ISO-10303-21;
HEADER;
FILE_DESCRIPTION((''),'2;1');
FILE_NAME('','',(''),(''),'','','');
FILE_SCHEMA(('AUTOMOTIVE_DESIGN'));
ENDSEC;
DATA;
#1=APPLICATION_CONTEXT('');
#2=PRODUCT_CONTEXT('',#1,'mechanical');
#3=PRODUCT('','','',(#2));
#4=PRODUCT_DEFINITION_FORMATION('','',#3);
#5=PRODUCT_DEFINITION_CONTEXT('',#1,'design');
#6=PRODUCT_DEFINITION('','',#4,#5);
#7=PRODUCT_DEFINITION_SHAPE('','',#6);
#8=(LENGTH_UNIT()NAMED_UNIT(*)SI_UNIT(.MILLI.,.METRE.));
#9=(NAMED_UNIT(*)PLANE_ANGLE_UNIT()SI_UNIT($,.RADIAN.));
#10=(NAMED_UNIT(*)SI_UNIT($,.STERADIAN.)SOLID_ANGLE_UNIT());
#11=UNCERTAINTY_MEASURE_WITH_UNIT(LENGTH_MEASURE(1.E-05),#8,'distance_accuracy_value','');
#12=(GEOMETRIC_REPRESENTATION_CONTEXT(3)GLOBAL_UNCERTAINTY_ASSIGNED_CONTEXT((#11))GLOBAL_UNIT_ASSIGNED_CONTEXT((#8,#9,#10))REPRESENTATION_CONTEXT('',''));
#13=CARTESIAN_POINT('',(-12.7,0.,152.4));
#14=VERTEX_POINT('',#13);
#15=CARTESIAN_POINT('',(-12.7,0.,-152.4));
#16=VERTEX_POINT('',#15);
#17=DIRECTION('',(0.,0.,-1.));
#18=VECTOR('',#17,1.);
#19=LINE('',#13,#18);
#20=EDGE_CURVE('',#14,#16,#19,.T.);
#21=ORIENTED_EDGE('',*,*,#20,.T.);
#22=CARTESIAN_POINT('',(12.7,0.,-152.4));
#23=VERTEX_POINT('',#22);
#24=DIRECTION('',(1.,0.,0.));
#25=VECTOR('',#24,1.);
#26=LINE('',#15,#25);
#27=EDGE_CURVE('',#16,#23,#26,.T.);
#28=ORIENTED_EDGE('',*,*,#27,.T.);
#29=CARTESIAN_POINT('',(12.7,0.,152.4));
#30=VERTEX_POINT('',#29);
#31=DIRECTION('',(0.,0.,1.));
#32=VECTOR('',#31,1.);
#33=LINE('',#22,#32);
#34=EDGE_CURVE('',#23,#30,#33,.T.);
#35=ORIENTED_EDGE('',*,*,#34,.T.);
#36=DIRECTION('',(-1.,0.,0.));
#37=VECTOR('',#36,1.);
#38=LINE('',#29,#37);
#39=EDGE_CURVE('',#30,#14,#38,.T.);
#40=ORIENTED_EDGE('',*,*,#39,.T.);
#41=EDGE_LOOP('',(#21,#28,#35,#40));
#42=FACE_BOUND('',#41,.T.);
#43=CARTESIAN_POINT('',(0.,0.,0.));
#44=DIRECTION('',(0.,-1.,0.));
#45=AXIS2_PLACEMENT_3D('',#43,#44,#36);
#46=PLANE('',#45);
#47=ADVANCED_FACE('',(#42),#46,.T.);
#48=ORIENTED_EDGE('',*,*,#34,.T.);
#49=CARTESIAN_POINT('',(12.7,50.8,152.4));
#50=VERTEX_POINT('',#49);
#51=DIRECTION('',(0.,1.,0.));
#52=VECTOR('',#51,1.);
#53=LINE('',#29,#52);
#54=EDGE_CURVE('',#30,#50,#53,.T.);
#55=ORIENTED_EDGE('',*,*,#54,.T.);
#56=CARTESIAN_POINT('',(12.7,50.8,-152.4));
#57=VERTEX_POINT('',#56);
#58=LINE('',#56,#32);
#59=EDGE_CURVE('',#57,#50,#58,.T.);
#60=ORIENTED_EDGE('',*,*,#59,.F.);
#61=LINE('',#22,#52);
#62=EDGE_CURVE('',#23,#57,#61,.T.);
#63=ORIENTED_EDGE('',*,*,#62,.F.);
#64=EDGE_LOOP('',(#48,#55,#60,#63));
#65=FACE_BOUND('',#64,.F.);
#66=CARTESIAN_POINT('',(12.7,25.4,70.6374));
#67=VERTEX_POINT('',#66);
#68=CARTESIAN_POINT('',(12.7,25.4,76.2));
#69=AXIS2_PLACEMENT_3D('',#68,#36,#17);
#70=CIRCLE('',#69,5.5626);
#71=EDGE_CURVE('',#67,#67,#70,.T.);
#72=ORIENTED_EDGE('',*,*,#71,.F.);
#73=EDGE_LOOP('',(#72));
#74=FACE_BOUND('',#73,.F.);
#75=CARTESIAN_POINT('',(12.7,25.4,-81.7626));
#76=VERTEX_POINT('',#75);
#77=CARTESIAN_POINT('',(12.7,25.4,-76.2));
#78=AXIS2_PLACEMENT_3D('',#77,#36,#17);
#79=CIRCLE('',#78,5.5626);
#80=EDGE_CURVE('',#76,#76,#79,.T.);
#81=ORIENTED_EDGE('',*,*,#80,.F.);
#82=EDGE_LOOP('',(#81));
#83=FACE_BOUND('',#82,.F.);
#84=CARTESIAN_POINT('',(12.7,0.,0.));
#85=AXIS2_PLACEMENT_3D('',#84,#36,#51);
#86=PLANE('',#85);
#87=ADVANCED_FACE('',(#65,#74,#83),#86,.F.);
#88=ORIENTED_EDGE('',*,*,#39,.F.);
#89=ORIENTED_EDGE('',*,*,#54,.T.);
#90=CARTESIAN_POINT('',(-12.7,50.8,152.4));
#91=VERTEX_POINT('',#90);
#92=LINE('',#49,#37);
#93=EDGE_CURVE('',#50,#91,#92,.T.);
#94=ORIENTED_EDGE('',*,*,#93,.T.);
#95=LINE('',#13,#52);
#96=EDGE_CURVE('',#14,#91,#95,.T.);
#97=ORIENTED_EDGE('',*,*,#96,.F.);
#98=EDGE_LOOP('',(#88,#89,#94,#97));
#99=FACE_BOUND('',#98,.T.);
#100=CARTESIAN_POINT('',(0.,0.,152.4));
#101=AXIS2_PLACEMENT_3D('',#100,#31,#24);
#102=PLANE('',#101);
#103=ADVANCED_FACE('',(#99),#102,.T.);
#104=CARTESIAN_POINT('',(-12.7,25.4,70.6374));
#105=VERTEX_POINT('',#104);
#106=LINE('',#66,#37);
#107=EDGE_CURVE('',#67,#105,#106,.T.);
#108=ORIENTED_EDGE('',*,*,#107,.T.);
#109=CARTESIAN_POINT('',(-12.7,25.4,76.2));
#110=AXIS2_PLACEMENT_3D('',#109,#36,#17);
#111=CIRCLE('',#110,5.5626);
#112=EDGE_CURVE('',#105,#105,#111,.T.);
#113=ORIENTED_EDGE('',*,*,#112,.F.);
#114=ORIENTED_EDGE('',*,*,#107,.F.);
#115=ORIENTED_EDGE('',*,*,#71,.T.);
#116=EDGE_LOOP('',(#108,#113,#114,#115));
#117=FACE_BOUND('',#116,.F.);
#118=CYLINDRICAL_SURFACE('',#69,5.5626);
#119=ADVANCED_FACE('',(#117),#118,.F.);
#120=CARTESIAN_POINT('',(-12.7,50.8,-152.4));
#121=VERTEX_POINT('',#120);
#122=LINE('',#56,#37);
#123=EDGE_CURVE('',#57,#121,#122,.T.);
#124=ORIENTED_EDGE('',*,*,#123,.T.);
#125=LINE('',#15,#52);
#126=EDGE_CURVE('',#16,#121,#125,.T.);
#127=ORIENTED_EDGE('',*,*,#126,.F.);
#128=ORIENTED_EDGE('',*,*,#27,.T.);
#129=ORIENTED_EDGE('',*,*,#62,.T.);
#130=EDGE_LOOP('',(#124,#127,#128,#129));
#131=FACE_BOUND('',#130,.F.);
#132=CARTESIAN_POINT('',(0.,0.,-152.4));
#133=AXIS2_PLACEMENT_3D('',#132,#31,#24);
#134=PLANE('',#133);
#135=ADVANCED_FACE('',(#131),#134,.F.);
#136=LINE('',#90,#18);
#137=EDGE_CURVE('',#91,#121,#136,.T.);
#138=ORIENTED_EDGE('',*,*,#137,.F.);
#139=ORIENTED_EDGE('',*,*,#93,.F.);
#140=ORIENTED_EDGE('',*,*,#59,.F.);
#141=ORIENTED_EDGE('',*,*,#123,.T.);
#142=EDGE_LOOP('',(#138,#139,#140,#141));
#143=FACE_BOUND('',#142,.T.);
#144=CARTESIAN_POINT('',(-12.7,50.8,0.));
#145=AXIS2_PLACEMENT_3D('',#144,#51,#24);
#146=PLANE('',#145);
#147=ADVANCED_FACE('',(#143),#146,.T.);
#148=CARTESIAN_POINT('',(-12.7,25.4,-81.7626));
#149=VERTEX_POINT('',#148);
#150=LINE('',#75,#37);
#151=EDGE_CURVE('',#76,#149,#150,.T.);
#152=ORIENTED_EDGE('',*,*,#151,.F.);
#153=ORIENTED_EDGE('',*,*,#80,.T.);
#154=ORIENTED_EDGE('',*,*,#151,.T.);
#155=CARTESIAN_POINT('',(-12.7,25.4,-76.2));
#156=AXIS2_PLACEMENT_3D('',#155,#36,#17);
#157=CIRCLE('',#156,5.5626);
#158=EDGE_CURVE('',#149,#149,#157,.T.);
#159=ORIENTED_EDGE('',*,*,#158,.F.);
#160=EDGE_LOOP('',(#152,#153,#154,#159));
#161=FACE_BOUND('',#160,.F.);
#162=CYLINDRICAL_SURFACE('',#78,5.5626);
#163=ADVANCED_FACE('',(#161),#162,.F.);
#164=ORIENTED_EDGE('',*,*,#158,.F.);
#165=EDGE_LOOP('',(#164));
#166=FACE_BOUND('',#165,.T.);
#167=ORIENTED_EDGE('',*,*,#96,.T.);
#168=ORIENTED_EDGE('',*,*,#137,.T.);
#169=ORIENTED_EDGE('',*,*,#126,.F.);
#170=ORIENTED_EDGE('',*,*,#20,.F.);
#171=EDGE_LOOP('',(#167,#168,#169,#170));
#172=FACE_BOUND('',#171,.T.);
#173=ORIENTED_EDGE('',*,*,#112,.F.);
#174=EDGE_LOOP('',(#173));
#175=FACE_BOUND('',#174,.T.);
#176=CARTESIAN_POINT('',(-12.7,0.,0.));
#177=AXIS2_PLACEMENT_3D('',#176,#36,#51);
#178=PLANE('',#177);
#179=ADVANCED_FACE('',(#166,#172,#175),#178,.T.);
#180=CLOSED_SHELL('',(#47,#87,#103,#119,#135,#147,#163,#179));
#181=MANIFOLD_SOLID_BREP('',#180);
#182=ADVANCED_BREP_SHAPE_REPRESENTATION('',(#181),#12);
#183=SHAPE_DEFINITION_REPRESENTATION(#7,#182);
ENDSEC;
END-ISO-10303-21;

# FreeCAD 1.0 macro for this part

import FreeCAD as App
import Part
import Sketcher
from FreeCAD import Vector
Q = App.Units.Quantity


def add_polygon(sketch, points):
    """Adds a closed chain of lines whose ends are joined by coincident constraints."""
    first, n = sketch.GeometryCount, len(points)
    for a, b in zip(points, points[1:] + points[:1]):
        sketch.addGeometry(Part.LineSegment(App.Vector(*a, 0), App.Vector(*b, 0)), False)
    for i in range(n):
        sketch.addConstraint(Sketcher.Constraint("Coincident", first + i, 2, first + (i + 1) % n, 1))

doc = App.newDocument("Part")
params = doc.addObject("Spreadsheet::Sheet", "Params")
for row, (alias, value) in enumerate([
    ("sketch1_height", "2 in"),
    ("pad1_length", "12 in"),
    ("sketch2_diameter", "0.266 in"),
    ("hole_diameter", "0.266 in"),
    ("hole_cbore_diameter", "0.438 in"),
    ("hole_cbore_depth", "1.35 in"),
], start=1):
    params.set(f"A{row}", alias)
    params.set(f"B{row}", "=" + value)
    params.setAlias(f"B{row}", alias)

body = doc.addObject("PartDesign::Body", "Body")

# Sketch on XY plane
sketch1 = doc.addObject("Sketcher::SketchObject", "Sketch")
body.addObject(sketch1)
sketch1.AttachmentSupport = (doc.XY_Plane, [""])
sketch1.MapMode = "FlatFace"
add_polygon(sketch1, [(-12.7, 0), (12.7, 0), (12.7, 50.8), (-12.7, 50.8)])  # lines 0-3
sketch1.addConstraint(Sketcher.Constraint("Horizontal", 0))
sketch1.addConstraint(Sketcher.Constraint("Vertical", 1))
sketch1.addConstraint(Sketcher.Constraint("Horizontal", 2))
sketch1.addConstraint(Sketcher.Constraint("Vertical", 3))
sketch1.addConstraint(Sketcher.Constraint("Symmetric", 0, 2, 3, 2, -1, 1))
sketch1.addConstraint(Sketcher.Constraint("DistanceY", 1, 1, 1, 2, Q("2 in")))
sketch1.addConstraint(Sketcher.Constraint("DistanceX", -1, 1, 0, 2, Q("0.5 in")))
sketch1.setExpression("Constraints[9]", "Params.sketch1_height")
pad1 = doc.addObject("PartDesign::Pad", "Pad")
body.addObject(pad1)
pad1.Profile = sketch1
pad1.setExpression("Length", "Params.pad1_length")
pad1.Midplane = True

# Sketch on YZ plane
sketch2 = doc.addObject("Sketcher::SketchObject", "Sketch001")
body.addObject(sketch2)
sketch2.AttachmentSupport = (doc.YZ_Plane, [""])
sketch2.MapMode = "FlatFace"
sketch2.AttachmentOffset = App.Placement(Vector(0, 0, 0.5 * 25.4), App.Rotation())
sketch2.addGeometry(Part.Circle(Vector(25.4, 76.2, 0), Vector(0, 0, 1), 3.3782), False)
sketch2.addGeometry(Part.Circle(Vector(25.4, -76.2, 0), Vector(0, 0, 1), 3.3782), False)
sketch2.addGeometry(Part.Circle(Vector(73.7254, -32.3909, 0), Vector(0, 0, 1), 3.3782), False)
sketch2.addConstraint(Sketcher.Constraint("Equal", 0, 1))
sketch2.addConstraint(Sketcher.Constraint("Equal", 1, 2))
sketch2.addConstraint(Sketcher.Constraint("Symmetric", 0, 3, 1, 3, -1))
sketch2.addConstraint(Sketcher.Constraint("Diameter", 0, Q("0.266 in")))
sketch2.addConstraint(Sketcher.Constraint("DistanceX", -1, 1, 0, 3, Q("1 in")))
sketch2.addConstraint(Sketcher.Constraint("DistanceY", -1, 1, 0, 3, Q("3 in")))
sketch2.addConstraint(Sketcher.Constraint("DistanceX", -1, 1, 2, 3, Q("73.7254 mm")))
sketch2.addConstraint(Sketcher.Constraint("DistanceY", 2, 3, -1, 1, Q("32.391 mm")))
sketch2.setExpression("Constraints[3]", "Params.sketch2_diameter")
doc.recompute()
hole = doc.addObject("PartDesign::Hole", "Hole")
body.addObject(hole)
hole.Profile = sketch2
hole.ThreadType = "None"
hole.setExpression("Diameter", "Params.hole_diameter")
hole.DepthType = "ThroughAll"
hole.HoleCutType = "Counterbore"
hole.setExpression("HoleCutDiameter", "Params.hole_cbore_diameter")
hole.setExpression("HoleCutDepth", "Params.hole_cbore_depth")

doc.recompute()
